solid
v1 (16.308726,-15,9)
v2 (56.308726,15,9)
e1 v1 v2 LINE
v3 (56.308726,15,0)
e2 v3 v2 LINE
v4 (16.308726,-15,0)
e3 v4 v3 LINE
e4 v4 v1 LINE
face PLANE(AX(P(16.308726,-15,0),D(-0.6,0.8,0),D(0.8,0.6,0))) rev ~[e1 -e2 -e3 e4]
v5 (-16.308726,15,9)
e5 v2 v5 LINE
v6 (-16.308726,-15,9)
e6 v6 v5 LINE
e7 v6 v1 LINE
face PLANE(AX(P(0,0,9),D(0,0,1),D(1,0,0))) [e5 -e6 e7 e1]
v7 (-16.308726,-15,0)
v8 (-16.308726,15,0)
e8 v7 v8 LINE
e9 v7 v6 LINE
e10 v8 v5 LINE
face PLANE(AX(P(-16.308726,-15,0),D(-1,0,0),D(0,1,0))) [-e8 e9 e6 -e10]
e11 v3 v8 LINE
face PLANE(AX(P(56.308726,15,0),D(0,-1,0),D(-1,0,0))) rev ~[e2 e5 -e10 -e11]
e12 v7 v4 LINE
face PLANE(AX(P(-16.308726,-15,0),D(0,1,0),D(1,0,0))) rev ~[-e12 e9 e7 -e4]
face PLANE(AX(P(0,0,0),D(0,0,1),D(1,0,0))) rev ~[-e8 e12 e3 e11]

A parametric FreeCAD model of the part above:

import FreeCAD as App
import Part
import Sketcher

V = App.Vector
Q = App.Units.Quantity


def add_polygon(sketch, points):
    """Adds a closed chain of lines whose ends are joined by coincident constraints."""
    first, n = sketch.GeometryCount, len(points)
    for a, b in zip(points, points[1:] + points[:1]):
        sketch.addGeometry(Part.LineSegment(App.Vector(*a, 0), App.Vector(*b, 0)), False)
    for i in range(n):
        sketch.addConstraint(Sketcher.Constraint("Coincident", first + i, 2, first + (i + 1) % n, 1))

doc = App.newDocument("Part")
params = doc.addObject("Spreadsheet::Sheet", "Params")
for row, (alias, value) in enumerate([
    ("sketch1_height", "30 mm"),
    ("sketch1_length", "50 mm"),
    ("pad1_length", "9 mm"),
], start=1):
    params.set(f"A{row}", alias)
    params.set(f"B{row}", "=" + value)
    params.setAlias(f"B{row}", alias)

body = doc.addObject("PartDesign::Body", "Body")

# Sketch on XY plane
sketch1 = body.newObject("Sketcher::SketchObject", "Sketch")
sketch1.AttachmentSupport = (doc.getObject("XY_Plane"), [""])
sketch1.MapMode = "FlatFace"
add_polygon(sketch1, [(-16, 15), (-16, -15), (16, -15), (56, 15)])  # lines 0-3
sketch1.addConstraint([
    Sketcher.Constraint("Vertical", 0),
    Sketcher.Constraint("Horizontal", 1),
    Sketcher.Constraint("Horizontal", 3),
    Sketcher.Constraint("Symmetric", 1, 2, 3, 2, -1, 1),
    Sketcher.Constraint("DistanceY", 0, 2, 0, 1, Q("30 mm")),
    Sketcher.Constraint("Distance", 2, Q("50 mm")),
    Sketcher.Constraint("DistanceX", 3, 2, 3, 1, Q("72.617452 mm")),
])
sketch1.setExpression("Constraints[8]", "Params.sketch1_height")
sketch1.setExpression("Constraints[9]", "Params.sketch1_length")
pad1 = body.newObject("PartDesign::Pad", "Pad")
pad1.Profile = sketch1
pad1.setExpression("Length", "Params.pad1_length")

doc.recompute()
